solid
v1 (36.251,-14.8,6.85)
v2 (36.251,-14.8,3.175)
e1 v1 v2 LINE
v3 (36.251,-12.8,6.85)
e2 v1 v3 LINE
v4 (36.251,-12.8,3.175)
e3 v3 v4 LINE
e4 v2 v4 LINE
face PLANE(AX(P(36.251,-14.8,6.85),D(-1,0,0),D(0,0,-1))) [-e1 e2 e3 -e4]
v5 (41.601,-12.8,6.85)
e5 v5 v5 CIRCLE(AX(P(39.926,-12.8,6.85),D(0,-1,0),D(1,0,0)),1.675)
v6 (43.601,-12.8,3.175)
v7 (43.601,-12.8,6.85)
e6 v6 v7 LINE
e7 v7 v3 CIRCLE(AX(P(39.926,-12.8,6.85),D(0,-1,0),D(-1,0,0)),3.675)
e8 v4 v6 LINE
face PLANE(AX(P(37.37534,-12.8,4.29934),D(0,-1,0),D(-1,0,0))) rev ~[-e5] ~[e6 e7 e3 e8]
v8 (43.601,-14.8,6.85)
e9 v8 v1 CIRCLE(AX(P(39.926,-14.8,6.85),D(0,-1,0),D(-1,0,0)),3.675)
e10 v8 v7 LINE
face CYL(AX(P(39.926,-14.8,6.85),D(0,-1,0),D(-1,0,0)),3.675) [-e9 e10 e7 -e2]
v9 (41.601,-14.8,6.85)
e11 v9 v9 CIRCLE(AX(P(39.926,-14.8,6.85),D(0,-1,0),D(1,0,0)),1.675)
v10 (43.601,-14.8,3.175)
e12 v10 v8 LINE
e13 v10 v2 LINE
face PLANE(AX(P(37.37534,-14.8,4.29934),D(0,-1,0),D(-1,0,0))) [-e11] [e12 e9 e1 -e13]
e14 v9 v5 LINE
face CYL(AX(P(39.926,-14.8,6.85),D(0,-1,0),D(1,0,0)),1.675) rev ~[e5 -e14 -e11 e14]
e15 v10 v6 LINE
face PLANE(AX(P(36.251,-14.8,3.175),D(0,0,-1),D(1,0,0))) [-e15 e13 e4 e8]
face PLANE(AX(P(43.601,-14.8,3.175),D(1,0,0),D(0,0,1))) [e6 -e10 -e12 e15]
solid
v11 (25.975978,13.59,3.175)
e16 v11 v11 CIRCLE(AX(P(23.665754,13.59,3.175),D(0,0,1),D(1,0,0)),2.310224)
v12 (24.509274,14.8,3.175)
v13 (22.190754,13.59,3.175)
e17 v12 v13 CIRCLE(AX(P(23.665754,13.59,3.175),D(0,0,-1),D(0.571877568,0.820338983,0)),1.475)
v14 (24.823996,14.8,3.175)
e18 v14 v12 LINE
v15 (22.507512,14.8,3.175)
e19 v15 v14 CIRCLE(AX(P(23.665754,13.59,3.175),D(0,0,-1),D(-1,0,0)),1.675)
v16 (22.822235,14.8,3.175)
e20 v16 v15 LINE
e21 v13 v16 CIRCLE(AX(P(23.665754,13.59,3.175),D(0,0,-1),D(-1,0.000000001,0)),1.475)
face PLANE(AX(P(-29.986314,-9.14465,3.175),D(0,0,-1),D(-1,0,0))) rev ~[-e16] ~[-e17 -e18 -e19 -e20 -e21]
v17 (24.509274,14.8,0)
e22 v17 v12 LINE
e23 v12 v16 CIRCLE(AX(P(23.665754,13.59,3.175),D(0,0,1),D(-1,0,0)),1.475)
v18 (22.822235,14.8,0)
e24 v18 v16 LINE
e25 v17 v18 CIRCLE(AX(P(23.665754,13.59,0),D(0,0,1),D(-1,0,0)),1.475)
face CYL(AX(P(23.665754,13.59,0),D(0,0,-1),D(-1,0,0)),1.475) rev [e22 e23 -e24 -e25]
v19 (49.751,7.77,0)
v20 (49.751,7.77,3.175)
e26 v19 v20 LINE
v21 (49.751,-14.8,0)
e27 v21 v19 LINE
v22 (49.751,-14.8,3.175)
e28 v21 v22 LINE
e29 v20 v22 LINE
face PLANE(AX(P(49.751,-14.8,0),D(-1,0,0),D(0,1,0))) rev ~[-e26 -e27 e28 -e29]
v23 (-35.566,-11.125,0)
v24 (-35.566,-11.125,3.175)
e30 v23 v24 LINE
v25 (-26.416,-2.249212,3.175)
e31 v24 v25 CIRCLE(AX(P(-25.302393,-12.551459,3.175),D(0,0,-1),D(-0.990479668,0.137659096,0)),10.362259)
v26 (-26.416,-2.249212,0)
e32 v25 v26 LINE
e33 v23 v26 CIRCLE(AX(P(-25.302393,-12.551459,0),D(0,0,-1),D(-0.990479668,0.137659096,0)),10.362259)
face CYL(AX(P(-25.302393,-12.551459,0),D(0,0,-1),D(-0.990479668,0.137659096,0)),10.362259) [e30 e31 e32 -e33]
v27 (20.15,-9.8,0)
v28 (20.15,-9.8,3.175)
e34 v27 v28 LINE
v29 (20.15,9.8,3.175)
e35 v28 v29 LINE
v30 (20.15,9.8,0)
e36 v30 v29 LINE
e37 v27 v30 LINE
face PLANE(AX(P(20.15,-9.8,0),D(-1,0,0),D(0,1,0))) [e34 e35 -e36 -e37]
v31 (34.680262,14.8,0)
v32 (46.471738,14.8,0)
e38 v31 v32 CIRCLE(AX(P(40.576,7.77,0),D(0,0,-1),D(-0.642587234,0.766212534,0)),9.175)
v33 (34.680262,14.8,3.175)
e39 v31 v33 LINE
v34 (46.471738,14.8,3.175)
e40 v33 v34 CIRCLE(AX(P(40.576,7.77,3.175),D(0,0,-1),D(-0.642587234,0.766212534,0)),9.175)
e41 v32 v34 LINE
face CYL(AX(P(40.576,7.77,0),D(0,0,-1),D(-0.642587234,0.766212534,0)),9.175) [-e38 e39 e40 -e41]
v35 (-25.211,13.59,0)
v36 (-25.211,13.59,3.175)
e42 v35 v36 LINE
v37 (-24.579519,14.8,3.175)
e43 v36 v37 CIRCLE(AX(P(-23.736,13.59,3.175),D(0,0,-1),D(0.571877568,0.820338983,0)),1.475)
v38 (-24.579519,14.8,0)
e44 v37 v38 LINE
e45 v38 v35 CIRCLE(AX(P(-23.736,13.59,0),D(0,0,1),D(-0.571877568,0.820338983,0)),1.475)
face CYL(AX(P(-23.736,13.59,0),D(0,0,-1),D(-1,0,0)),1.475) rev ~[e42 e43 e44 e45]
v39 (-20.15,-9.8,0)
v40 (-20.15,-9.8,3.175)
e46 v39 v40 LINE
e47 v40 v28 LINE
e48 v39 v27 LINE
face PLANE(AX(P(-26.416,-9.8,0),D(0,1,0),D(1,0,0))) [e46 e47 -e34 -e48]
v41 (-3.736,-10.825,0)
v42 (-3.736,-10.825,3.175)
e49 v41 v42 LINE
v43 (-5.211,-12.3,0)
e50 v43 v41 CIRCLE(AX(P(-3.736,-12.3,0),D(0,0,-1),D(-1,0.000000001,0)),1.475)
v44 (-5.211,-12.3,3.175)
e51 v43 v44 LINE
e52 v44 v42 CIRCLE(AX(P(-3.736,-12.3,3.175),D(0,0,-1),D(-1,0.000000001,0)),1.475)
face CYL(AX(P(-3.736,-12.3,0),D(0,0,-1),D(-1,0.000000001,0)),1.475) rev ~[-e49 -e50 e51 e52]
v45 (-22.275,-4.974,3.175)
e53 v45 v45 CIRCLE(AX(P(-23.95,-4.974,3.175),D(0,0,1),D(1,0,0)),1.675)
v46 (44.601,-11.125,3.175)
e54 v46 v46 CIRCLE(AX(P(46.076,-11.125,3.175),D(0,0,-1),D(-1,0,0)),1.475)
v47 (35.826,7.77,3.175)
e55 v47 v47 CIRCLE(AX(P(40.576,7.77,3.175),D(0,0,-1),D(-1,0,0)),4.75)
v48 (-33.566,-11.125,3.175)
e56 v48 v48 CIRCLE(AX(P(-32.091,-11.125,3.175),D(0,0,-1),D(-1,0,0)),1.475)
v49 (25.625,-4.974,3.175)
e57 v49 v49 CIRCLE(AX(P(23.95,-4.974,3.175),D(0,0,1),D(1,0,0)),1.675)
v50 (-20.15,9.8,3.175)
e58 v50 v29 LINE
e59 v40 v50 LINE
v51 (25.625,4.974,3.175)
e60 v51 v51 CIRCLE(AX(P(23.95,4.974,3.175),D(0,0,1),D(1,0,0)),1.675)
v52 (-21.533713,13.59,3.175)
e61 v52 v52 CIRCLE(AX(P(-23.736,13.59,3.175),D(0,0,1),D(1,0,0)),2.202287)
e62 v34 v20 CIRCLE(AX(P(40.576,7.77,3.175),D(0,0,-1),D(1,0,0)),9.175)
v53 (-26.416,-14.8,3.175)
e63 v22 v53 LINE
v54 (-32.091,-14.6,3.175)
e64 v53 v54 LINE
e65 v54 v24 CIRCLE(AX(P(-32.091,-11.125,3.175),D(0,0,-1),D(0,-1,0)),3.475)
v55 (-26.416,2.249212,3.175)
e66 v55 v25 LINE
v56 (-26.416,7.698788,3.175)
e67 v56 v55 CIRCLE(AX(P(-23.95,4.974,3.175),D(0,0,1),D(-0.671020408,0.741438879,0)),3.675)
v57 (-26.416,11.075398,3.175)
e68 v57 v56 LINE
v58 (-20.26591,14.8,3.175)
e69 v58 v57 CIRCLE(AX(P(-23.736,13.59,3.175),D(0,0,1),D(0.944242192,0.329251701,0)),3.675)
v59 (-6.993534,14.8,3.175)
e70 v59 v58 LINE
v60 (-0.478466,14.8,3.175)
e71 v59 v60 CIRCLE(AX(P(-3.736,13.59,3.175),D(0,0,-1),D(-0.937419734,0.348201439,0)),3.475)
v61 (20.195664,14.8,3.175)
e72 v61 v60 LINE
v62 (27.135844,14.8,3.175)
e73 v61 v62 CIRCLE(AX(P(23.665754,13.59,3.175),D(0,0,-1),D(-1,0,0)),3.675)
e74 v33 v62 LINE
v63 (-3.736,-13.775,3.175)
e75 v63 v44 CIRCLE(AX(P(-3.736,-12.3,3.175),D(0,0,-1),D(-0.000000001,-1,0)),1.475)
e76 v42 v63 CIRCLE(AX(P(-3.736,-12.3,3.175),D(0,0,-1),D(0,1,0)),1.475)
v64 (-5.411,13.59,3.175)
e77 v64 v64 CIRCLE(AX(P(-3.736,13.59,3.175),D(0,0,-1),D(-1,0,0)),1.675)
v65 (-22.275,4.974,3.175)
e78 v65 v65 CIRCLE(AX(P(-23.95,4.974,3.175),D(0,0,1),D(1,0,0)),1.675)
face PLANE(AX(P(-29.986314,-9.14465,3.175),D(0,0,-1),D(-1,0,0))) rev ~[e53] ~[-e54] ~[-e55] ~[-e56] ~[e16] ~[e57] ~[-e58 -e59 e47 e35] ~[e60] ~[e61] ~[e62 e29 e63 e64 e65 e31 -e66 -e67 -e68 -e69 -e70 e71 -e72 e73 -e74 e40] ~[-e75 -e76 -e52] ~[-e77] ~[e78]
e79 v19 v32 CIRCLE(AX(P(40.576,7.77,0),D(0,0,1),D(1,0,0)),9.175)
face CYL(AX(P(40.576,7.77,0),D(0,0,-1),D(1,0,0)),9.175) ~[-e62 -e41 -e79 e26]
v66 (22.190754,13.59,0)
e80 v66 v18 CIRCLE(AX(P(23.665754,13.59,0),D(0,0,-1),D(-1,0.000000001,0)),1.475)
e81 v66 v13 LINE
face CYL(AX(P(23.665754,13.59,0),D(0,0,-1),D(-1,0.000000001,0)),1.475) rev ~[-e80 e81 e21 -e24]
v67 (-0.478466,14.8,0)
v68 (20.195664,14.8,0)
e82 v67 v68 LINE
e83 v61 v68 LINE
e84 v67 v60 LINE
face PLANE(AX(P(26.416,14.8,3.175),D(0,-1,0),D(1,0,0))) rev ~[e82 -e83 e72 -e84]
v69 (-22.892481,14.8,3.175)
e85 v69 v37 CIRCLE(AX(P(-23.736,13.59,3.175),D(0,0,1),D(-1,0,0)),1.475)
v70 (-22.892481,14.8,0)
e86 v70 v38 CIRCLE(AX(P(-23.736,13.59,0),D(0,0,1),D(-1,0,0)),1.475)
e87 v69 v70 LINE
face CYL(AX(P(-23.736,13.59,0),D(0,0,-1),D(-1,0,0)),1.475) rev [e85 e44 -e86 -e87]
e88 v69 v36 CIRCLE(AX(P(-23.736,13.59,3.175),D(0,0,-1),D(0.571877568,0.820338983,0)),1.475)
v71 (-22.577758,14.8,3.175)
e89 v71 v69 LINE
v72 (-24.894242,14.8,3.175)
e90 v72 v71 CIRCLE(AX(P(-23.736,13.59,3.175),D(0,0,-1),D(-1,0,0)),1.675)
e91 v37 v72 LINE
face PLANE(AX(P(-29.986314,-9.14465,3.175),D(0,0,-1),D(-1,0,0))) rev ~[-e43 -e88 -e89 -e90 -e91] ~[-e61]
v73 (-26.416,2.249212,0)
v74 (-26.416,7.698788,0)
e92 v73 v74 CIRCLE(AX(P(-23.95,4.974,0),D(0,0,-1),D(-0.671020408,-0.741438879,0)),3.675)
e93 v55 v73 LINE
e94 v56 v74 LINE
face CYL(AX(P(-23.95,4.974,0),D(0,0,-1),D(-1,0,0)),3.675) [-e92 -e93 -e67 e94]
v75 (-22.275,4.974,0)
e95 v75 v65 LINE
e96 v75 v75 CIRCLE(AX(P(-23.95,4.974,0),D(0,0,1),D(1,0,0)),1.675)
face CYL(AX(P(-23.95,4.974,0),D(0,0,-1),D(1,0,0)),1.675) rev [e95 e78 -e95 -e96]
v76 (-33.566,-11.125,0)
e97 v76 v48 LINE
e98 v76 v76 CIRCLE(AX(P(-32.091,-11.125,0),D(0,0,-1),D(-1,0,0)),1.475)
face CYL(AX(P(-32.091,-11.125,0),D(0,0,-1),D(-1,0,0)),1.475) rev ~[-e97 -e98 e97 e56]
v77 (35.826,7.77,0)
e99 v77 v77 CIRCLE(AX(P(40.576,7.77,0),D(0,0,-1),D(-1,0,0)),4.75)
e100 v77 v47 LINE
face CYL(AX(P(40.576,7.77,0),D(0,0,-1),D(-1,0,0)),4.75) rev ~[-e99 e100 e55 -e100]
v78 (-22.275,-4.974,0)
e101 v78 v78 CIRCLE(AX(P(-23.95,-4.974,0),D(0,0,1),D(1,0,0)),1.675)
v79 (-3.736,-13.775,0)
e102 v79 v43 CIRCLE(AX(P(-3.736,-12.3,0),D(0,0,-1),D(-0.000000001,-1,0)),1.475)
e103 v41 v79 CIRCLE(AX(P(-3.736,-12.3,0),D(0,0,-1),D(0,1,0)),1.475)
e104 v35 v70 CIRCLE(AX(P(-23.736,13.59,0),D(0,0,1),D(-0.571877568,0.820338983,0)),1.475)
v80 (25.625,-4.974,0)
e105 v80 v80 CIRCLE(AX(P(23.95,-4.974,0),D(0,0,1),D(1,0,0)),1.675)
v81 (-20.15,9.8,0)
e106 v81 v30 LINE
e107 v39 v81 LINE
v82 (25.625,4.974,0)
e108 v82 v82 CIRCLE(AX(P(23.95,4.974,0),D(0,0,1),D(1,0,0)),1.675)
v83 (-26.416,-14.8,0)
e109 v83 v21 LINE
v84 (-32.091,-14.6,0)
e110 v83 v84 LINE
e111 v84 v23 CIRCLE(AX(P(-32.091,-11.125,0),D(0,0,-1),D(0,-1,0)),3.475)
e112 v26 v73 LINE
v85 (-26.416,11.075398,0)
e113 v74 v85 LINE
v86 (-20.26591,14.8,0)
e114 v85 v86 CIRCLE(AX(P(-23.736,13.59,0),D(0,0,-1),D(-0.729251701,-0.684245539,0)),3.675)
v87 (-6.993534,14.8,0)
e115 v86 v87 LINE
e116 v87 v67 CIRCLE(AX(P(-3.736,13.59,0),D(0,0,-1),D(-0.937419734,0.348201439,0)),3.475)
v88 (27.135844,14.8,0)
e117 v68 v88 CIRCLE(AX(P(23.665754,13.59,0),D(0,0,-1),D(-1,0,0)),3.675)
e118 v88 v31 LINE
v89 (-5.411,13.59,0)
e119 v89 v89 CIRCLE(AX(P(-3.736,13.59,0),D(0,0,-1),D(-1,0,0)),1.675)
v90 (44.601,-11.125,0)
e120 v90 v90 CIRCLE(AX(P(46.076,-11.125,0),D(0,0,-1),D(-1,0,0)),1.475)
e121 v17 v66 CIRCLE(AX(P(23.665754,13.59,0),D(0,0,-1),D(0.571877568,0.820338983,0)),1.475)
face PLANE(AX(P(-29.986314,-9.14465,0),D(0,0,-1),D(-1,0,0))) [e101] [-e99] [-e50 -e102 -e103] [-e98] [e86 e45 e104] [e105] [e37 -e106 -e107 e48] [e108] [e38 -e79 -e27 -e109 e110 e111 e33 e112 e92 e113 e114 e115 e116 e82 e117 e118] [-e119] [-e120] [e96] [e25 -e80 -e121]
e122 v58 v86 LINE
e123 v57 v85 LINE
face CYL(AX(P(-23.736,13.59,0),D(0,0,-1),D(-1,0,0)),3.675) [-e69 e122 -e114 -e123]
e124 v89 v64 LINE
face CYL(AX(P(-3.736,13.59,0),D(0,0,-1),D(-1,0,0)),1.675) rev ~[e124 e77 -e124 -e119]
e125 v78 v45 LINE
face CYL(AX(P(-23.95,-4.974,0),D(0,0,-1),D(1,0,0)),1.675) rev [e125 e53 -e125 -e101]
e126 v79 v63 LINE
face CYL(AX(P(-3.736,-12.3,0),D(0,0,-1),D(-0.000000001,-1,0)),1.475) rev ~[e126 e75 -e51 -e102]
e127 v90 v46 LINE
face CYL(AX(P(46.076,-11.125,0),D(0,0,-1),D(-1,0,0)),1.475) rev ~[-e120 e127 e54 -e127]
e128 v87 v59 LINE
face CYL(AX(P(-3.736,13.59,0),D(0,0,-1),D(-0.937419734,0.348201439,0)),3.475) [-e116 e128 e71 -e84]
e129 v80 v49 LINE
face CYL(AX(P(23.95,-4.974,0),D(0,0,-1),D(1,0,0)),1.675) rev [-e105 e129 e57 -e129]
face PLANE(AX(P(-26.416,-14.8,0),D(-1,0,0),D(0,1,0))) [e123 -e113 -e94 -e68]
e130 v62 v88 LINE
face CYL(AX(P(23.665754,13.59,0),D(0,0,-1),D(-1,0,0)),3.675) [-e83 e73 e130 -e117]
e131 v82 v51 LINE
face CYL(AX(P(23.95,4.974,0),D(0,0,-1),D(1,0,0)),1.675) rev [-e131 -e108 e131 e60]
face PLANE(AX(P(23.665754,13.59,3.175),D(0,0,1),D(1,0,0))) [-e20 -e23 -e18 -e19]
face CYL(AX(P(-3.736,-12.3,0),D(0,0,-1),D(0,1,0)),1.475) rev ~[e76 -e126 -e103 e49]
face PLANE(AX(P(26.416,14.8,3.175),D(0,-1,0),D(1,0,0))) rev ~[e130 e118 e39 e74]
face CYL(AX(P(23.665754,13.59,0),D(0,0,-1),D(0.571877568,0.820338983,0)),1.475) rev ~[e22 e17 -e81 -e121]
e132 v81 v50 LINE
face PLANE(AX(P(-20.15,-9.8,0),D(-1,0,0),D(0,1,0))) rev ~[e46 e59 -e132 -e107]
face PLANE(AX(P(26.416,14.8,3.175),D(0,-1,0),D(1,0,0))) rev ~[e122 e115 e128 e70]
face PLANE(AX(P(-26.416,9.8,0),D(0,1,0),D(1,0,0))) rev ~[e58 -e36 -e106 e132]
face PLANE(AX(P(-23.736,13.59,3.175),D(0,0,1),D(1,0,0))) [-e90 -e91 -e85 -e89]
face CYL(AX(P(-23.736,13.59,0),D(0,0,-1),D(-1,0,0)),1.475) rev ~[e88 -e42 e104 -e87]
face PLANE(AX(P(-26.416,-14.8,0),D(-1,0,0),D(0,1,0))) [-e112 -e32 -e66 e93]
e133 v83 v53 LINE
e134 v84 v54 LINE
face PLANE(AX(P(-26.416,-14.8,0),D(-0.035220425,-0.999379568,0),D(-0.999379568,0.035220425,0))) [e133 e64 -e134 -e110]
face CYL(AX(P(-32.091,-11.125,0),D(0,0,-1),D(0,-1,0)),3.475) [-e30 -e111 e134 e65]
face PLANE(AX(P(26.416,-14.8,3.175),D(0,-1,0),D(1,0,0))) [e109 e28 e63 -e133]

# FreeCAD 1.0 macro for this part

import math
import FreeCAD as App
import Part
import Sketcher
from FreeCAD import Vector


def add_polygon(sketch, points):
    """Adds a closed chain of lines whose ends are joined by coincident constraints."""
    first, n = sketch.GeometryCount, len(points)
    for a, b in zip(points, points[1:] + points[:1]):
        sketch.addGeometry(Part.LineSegment(App.Vector(*a, 0), App.Vector(*b, 0)), False)
    for i in range(n):
        sketch.addConstraint(Sketcher.Constraint("Coincident", first + i, 2, first + (i + 1) % n, 1))

doc = App.newDocument("Part")
params = doc.addObject("Spreadsheet::Sheet", "Params")
for row, (alias, value) in enumerate([
    ("sketch1_diameter", "3.35 mm"),
    ("sketch1_width", "40.3 mm"),
    ("sketch1_height", "29.6 mm"),
    ("sketch1_height2", "19.6 mm"),
    ("pad1_length", "3.175 mm"),
    ("sketch2_width", "30 mm"),
    ("sketch2_height", "29.6 mm"),
    ("pad2_length", "3.175 mm"),
    ("sketch3_diameter", "9.5 mm"),
    ("pocket1_length", "10 mm"),
    ("pad3_length", "3.175 mm"),
    ("sketch5_height", "29.6 mm"),
    ("sketch5_height2", "22.57 mm"),
    ("pocket2_length", "10 mm"),
    ("sketch6_diameter", "2.95 mm"),
    ("pocket3_length", "10 mm"),
    ("sketch7_diameter", "7.35 mm"),
    ("sketch7_diameter2", "3.35 mm"),
    ("pad4_length", "3.175 mm"),
    ("sketch8_diameter", "2.95 mm"),
    ("pocket4_length", "3.175 mm"),
    ("pocket5_length", "10 mm"),
    ("sketch10_diameter", "7.35 mm"),
    ("sketch10_diameter2", "3.35 mm"),
    ("pad5_length", "3.175 mm"),
    ("sketch11_diameter", "2.95 mm"),
    ("pad6_length", "3.175 mm"),
    ("pad7_length", "3.175 mm"),
    ("sketch13_diameter", "3.35 mm"),
    ("sketch15_diameter", "2.95 mm"),
    ("pad8_length", "3.175 mm"),
    ("sketch16_diameter", "3.35 mm"),
    ("pad9_length", "2 mm"),
], start=1):
    params.set(f"A{row}", alias)
    params.set(f"B{row}", "=" + value)
    params.setAlias(f"B{row}", alias)

body = doc.addObject("PartDesign::Body", "Body")

sketch1 = body.newObject("Sketcher::SketchObject", "Sketch")
sketch1.AttachmentSupport = (doc.getObject("XY_Plane"), [""])
sketch1.MapMode = "FlatFace"
add_polygon(sketch1, [(-26.4, -14.8), (26.4, -14.8), (26.4, 14.8), (-26.4, 14.8)])
add_polygon(sketch1, [(-20.1, -9.8), (-20.1, 9.8), (20.1, 9.8), (20.1, -9.8)])
sketch1.addGeometry(Part.Circle(Vector(-23.9, -5, 0), Vector(0, 0, 1), 1.7), False)
sketch1.addGeometry(Part.Circle(Vector(-23.9, 5, 0), Vector(0, 0, 1), 1.7), False)
sketch1.addGeometry(Part.Circle(Vector(23.9, 5, 0), Vector(0, 0, 1), 1.7), False)
sketch1.addGeometry(Part.Circle(Vector(23.9, -5, 0), Vector(0, 0, 1), 1.7), False)
sketch1.addConstraint(Sketcher.Constraint("Horizontal", 0))
sketch1.addConstraint(Sketcher.Constraint("Vertical", 1))
sketch1.addConstraint(Sketcher.Constraint("Horizontal", 2))
sketch1.addConstraint(Sketcher.Constraint("Vertical", 3))
sketch1.addConstraint(Sketcher.Constraint("Vertical", 4))
sketch1.addConstraint(Sketcher.Constraint("Horizontal", 5))
sketch1.addConstraint(Sketcher.Constraint("Vertical", 6))
sketch1.addConstraint(Sketcher.Constraint("Horizontal", 7))
sketch1.addConstraint(Sketcher.Constraint("Equal", 8, 9))
sketch1.addConstraint(Sketcher.Constraint("Equal", 9, 10))
sketch1.addConstraint(Sketcher.Constraint("Equal", 10, 11))
sketch1.addConstraint(Sketcher.Constraint("Symmetric", 8, 3, 10, 3, -1, 1))
sketch1.addConstraint(Sketcher.Constraint("Symmetric", 9, 3, 11, 3, -1, 1))
sketch1.addConstraint(Sketcher.Constraint("Symmetric", 0, 2, 2, 2, -1, 1))
sketch1.addConstraint(Sketcher.Constraint("Symmetric", 4, 2, 6, 2, -1, 1))
sketch1.addConstraint(Sketcher.Constraint("Symmetric", 9, 3, 10, 3, -2))
sketch1.addConstraint(Sketcher.Constraint("Diameter", 8, 3.35))
sketch1.addConstraint(Sketcher.Constraint("DistanceX", 5, 1, 5, 2, 40.3))
sketch1.addConstraint(Sketcher.Constraint("DistanceY", 1, 1, 1, 2, 29.6))
sketch1.addConstraint(Sketcher.Constraint("DistanceY", 4, 1, 4, 2, 19.6))
sketch1.addConstraint(Sketcher.Constraint("DistanceX", 9, 3, 10, 3, 47.9))
sketch1.addConstraint(Sketcher.Constraint("DistanceX", 0, 1, 0, 2, 52.832))
sketch1.addConstraint(Sketcher.Constraint("DistanceY", 8, 3, -1, 1, 4.974))
sketch1.setExpression("Constraints[24]", "Params.sketch1_diameter")
sketch1.setExpression("Constraints[25]", "Params.sketch1_width")
sketch1.setExpression("Constraints[26]", "Params.sketch1_height")
sketch1.setExpression("Constraints[27]", "Params.sketch1_height2")
pad1 = body.newObject("PartDesign::Pad", "Pad")
pad1.Profile = sketch1
pad1.setExpression("Length", "Params.pad1_length")

sketch2 = body.newObject("Sketcher::SketchObject", "Sketch001")
sketch2.AttachmentSupport = (doc.getObject("XY_Plane"), [""])
sketch2.MapMode = "FlatFace"
sketch2.AttachmentOffset = App.Placement(Vector(0, 0, 3.175), App.Rotation())
add_polygon(sketch2, [(26, 15), (26, -15), (56, -15), (56, 15)])
sketch2.addConstraint(Sketcher.Constraint("Vertical", 0))
sketch2.addConstraint(Sketcher.Constraint("Horizontal", 1))
sketch2.addConstraint(Sketcher.Constraint("Vertical", 2))
sketch2.addConstraint(Sketcher.Constraint("Horizontal", 3))
sketch2.addConstraint(Sketcher.Constraint("DistanceX", 1, 1, 1, 2, 30.0))
sketch2.addConstraint(Sketcher.Constraint("DistanceY", 0, 2, 0, 1, 29.6))
sketch2.addConstraint(Sketcher.Constraint("DistanceY", 0, 2, -1, 1, 14.8))
sketch2.addConstraint(Sketcher.Constraint("DistanceX", -1, 1, 0, 2, 26.416))
sketch2.setExpression("Constraints[8]", "Params.sketch2_width")
sketch2.setExpression("Constraints[9]", "Params.sketch2_height")
pad2 = body.newObject("PartDesign::Pad", "Pad001")
pad2.Profile = sketch2
pad2.setExpression("Length", "Params.pad2_length")
pad2.Reversed = True

sketch3 = body.newObject("Sketcher::SketchObject", "Sketch002")
sketch3.AttachmentSupport = (doc.getObject("XY_Plane"), [""])
sketch3.MapMode = "FlatFace"
sketch3.addGeometry(Part.Circle(Vector(40.6, 7.8, 0), Vector(0, 0, 1), 4.8), False)
sketch3.addConstraint(Sketcher.Constraint("Diameter", 0, 9.5))
sketch3.addConstraint(Sketcher.Constraint("DistanceY", -1, 1, 0, 3, 7.77))
sketch3.addConstraint(Sketcher.Constraint("DistanceX", -1, 1, 0, 3, 40.576))
sketch3.setExpression("Constraints[0]", "Params.sketch3_diameter")
pocket1 = body.newObject("PartDesign::Pocket", "Pocket")
pocket1.Profile = sketch3
pocket1.setExpression("Length", "Params.pocket1_length")
pocket1.Reversed = True

sketch4 = body.newObject("Sketcher::SketchObject", "Sketch003")
sketch4.AttachmentSupport = (doc.getObject("XY_Plane"), [""])
sketch4.MapMode = "FlatFace"
sketch4.addGeometry(Part.ArcOfCircle(Part.Circle(Vector(41, 8, 0), Vector(0, 0, 1), 9), math.radians(50), math.radians(130)), False)
sketch4.addGeometry(Part.LineSegment(Vector(46, 15, 0), Vector(35, 15, 0)), False)
sketch4.addConstraint(Sketcher.Constraint("Coincident", 0, 1, 1, 1))
sketch4.addConstraint(Sketcher.Constraint("Coincident", 1, 2, 0, 2))
sketch4.addConstraint(Sketcher.Constraint("Horizontal", 1))
sketch4.addConstraint(Sketcher.Constraint("Radius", 0, 9.175))
sketch4.addConstraint(Sketcher.Constraint("DistanceY", -1, 1, 0, 1, 14.8))
sketch4.addConstraint(Sketcher.Constraint("DistanceY", -1, 1, 0, 3, 7.77))
sketch4.addConstraint(Sketcher.Constraint("DistanceX", -1, 1, 0, 3, 40.576))
pad3 = body.newObject("PartDesign::Pad", "Pad002")
pad3.Profile = sketch4
pad3.setExpression("Length", "Params.pad3_length")

sketch5 = body.newObject("Sketcher::SketchObject", "Sketch004")
sketch5.AttachmentSupport = (doc.getObject("XY_Plane"), [""])
sketch5.MapMode = "FlatFace"
sketch5.addGeometry(Part.LineSegment(Vector(50, -15, 0), Vector(50, 8, 0)), False)
sketch5.addGeometry(Part.ArcOfCircle(Part.Circle(Vector(41, 8, 0), Vector(0, 0, 1), 9), math.radians(0), math.radians(50)), False)
sketch5.addGeometry(Part.LineSegment(Vector(46, 15, 0), Vector(56, 15, 0)), False)
sketch5.addGeometry(Part.LineSegment(Vector(56, 15, 0), Vector(56, -15, 0)), False)
sketch5.addGeometry(Part.LineSegment(Vector(56, -15, 0), Vector(50, -15, 0)), False)
sketch5.addConstraint(Sketcher.Constraint("Tangent", 0, 2, 1, 1))
sketch5.addConstraint(Sketcher.Constraint("Coincident", 1, 2, 2, 1))
sketch5.addConstraint(Sketcher.Constraint("Coincident", 2, 2, 3, 1))
sketch5.addConstraint(Sketcher.Constraint("Coincident", 3, 2, 4, 1))
sketch5.addConstraint(Sketcher.Constraint("Coincident", 4, 2, 0, 1))
sketch5.addConstraint(Sketcher.Constraint("Vertical", 0))
sketch5.addConstraint(Sketcher.Constraint("Horizontal", 2))
sketch5.addConstraint(Sketcher.Constraint("Vertical", 3))
sketch5.addConstraint(Sketcher.Constraint("Horizontal", 4))
sketch5.addConstraint(Sketcher.Constraint("DistanceY", 3, 2, 3, 1, 29.6))
sketch5.addConstraint(Sketcher.Constraint("Radius", 1, 9.175))
sketch5.addConstraint(Sketcher.Constraint("DistanceY", 0, 1, 0, 2, 22.57))
sketch5.addConstraint(Sketcher.Constraint("DistanceY", -1, 1, 1, 2, 14.8))
sketch5.addConstraint(Sketcher.Constraint("DistanceX", 4, 2, 4, 1, 6.665))
sketch5.addConstraint(Sketcher.Constraint("DistanceX", -1, 1, 1, 3, 40.576))
sketch5.setExpression("Constraints[9]", "Params.sketch5_height")
sketch5.setExpression("Constraints[11]", "Params.sketch5_height2")
pocket2 = body.newObject("PartDesign::Pocket", "Pocket001")
pocket2.Profile = sketch5
pocket2.setExpression("Length", "Params.pocket2_length")
pocket2.Reversed = True

sketch6 = body.newObject("Sketcher::SketchObject", "Sketch005")
sketch6.AttachmentSupport = (doc.getObject("XY_Plane"), [""])
sketch6.MapMode = "FlatFace"
sketch6.addGeometry(Part.Circle(Vector(-23.7, 13.6, 0), Vector(0, 0, 1), 1.5), False)
sketch6.addConstraint(Sketcher.Constraint("Diameter", 0, 2.95))
sketch6.addConstraint(Sketcher.Constraint("DistanceY", -1, 1, 0, 3, 13.59))
sketch6.addConstraint(Sketcher.Constraint("DistanceX", 0, 3, -1, 1, 23.736))
sketch6.setExpression("Constraints[0]", "Params.sketch6_diameter")
pocket3 = body.newObject("PartDesign::Pocket", "Pocket002")
pocket3.Profile = sketch6
pocket3.setExpression("Length", "Params.pocket3_length")
pocket3.Reversed = True

sketch7 = body.newObject("Sketcher::SketchObject", "Sketch006")
sketch7.AttachmentSupport = (doc.getObject("XY_Plane"), [""])
sketch7.MapMode = "FlatFace"
sketch7.addGeometry(Part.Circle(Vector(-23.9, -5, 0), Vector(0, 0, 1), 3.7), False)
sketch7.addGeometry(Part.Circle(Vector(-23.9, -5, 0), Vector(0, 0, 1), 1.7), False)
sketch7.addGeometry(Part.Circle(Vector(-23.9, 5, 0), Vector(0, 0, 1), 3.7), False)
sketch7.addGeometry(Part.Circle(Vector(-23.9, 5, 0), Vector(0, 0, 1), 1.7), False)
sketch7.addGeometry(Part.Circle(Vector(-23.7, 13.6, 0), Vector(0, 0, 1), 3.7), False)
sketch7.addGeometry(Part.Circle(Vector(-23.7, 13.6, 0), Vector(0, 0, 1), 1.7), False)
sketch7.addConstraint(Sketcher.Constraint("Coincident", 1, 3, 0, 3))
sketch7.addConstraint(Sketcher.Constraint("Coincident", 3, 3, 2, 3))
sketch7.addConstraint(Sketcher.Constraint("Coincident", 5, 3, 4, 3))
sketch7.addConstraint(Sketcher.Constraint("Equal", 0, 2))
sketch7.addConstraint(Sketcher.Constraint("Equal", 1, 3))
sketch7.addConstraint(Sketcher.Constraint("Equal", 2, 4))
sketch7.addConstraint(Sketcher.Constraint("Equal", 3, 5))
sketch7.addConstraint(Sketcher.Constraint("Symmetric", 0, 3, 2, 3, -1))
sketch7.addConstraint(Sketcher.Constraint("Diameter", 0, 7.35))
sketch7.addConstraint(Sketcher.Constraint("Diameter", 1, 3.35))
sketch7.addConstraint(Sketcher.Constraint("DistanceX", 0, 3, -1, 1, 23.95))
sketch7.addConstraint(Sketcher.Constraint("DistanceY", -1, 1, 4, 3, 13.59))
sketch7.addConstraint(Sketcher.Constraint("DistanceY", 0, 3, -1, 1, 4.974))
sketch7.addConstraint(Sketcher.Constraint("DistanceX", 4, 3, -1, 1, 23.736))
sketch7.setExpression("Constraints[8]", "Params.sketch7_diameter")
sketch7.setExpression("Constraints[9]", "Params.sketch7_diameter2")
pad4 = body.newObject("PartDesign::Pad", "Pad003")
pad4.Profile = sketch7
pad4.setExpression("Length", "Params.pad4_length")

sketch8 = body.newObject("Sketcher::SketchObject", "Sketch007")
sketch8.AttachmentSupport = (doc.getObject("XY_Plane"), [""])
sketch8.MapMode = "FlatFace"
sketch8.addGeometry(Part.Circle(Vector(46.1, -11.1, 0), Vector(0, 0, 1), 1.5), False)
sketch8.addConstraint(Sketcher.Constraint("Diameter", 0, 2.95))
sketch8.addConstraint(Sketcher.Constraint("DistanceX", -1, 1, 0, 3, 46.076))
sketch8.addConstraint(Sketcher.Constraint("DistanceY", 0, 3, -1, 1, 11.125))
sketch8.setExpression("Constraints[0]", "Params.sketch8_diameter")
pocket4 = body.newObject("PartDesign::Pocket", "Pocket003")
pocket4.Profile = sketch8
pocket4.setExpression("Length", "Params.pocket4_length")
pocket4.Reversed = True

sketch9 = body.newObject("Sketcher::SketchObject", "Sketch008")
sketch9.AttachmentSupport = (doc.getObject("XY_Plane"), [""])
sketch9.MapMode = "FlatFace"
sketch9.addGeometry(Part.ArcOfCircle(Part.Circle(Vector(23.7, 13.6, 0), Vector(0, 0, 1), 1.5), math.radians(125), math.radians(180)), False)
sketch9.addGeometry(Part.ArcOfCircle(Part.Circle(Vector(23.7, 13.6, 0), Vector(0, 0, 1), 1.5), math.radians(55), math.radians(125)), False)
sketch9.addGeometry(Part.ArcOfCircle(Part.Circle(Vector(23.7, 13.6, 0), Vector(0, 0, 1), 1.5), math.radians(180), math.radians(415)), False)
sketch9.addConstraint(Sketcher.Constraint("Tangent", 0, 1, 1, 2))
sketch9.addConstraint(Sketcher.Constraint("Tangent", 1, 1, 2, 2))
sketch9.addConstraint(Sketcher.Constraint("Tangent", 2, 1, 0, 2))
sketch9.addConstraint(Sketcher.Constraint("Horizontal", 0, 1, 1, 1))
sketch9.addConstraint(Sketcher.Constraint("Horizontal", 1, 3, 2, 1))
sketch9.addConstraint(Sketcher.Constraint("Radius", 0, 1.475))
sketch9.addConstraint(Sketcher.Constraint("DistanceY", -1, 1, 0, 1, 14.8))
sketch9.addConstraint(Sketcher.Constraint("DistanceY", -1, 1, 0, 3, 13.59))
sketch9.addConstraint(Sketcher.Constraint("DistanceX", -1, 1, 0, 3, 23.665754))
pocket5 = body.newObject("PartDesign::Pocket", "Pocket004")
pocket5.Profile = sketch9
pocket5.setExpression("Length", "Params.pocket5_length")
pocket5.Reversed = True

sketch10 = body.newObject("Sketcher::SketchObject", "Sketch009")
sketch10.AttachmentSupport = (doc.getObject("XY_Plane"), [""])
sketch10.MapMode = "FlatFace"
sketch10.addGeometry(Part.Circle(Vector(23.7, 13.6, 0), Vector(0, 0, 1), 3.7), False)
sketch10.addGeometry(Part.Circle(Vector(23.7, 13.6, 0), Vector(0, 0, 1), 1.7), False)
sketch10.addConstraint(Sketcher.Constraint("Coincident", 1, 3, 0, 3))
sketch10.addConstraint(Sketcher.Constraint("Diameter", 0, 7.35))
sketch10.addConstraint(Sketcher.Constraint("Diameter", 1, 3.35))
sketch10.addConstraint(Sketcher.Constraint("DistanceY", -1, 1, 0, 3, 13.59))
sketch10.addConstraint(Sketcher.Constraint("DistanceX", -1, 1, 0, 3, 23.665754))
sketch10.setExpression("Constraints[1]", "Params.sketch10_diameter")
sketch10.setExpression("Constraints[2]", "Params.sketch10_diameter2")
pad5 = body.newObject("PartDesign::Pad", "Pad004")
pad5.Profile = sketch10
pad5.setExpression("Length", "Params.pad5_length")

sketch11 = body.newObject("Sketcher::SketchObject", "Sketch010")
sketch11.AttachmentSupport = (doc.getObject("XY_Plane"), [""])
sketch11.MapMode = "FlatFace"
sketch11.addGeometry(Part.ArcOfCircle(Part.Circle(Vector(-25.3, -12.6, 0), Vector(0, 0, 1), 10.4), math.radians(96), math.radians(172)), False)
sketch11.addGeometry(Part.LineSegment(Vector(-26.4, -2.2, 0), Vector(-26.4, -14.8, 0)), False)
sketch11.addGeometry(Part.LineSegment(Vector(-26.4, -14.8, 0), Vector(-32.1, -14.6, 0)), False)
sketch11.addGeometry(Part.ArcOfCircle(Part.Circle(Vector(-32.1, -11.1, 0), Vector(0, 0, 1), 3.5), math.radians(180), math.radians(270)), False)
sketch11.addGeometry(Part.Circle(Vector(-32.1, -11.1, 0), Vector(0, 0, 1), 1.5), False)
sketch11.addConstraint(Sketcher.Constraint("Coincident", 0, 1, 1, 1))
sketch11.addConstraint(Sketcher.Constraint("Coincident", 1, 2, 2, 1))
sketch11.addConstraint(Sketcher.Constraint("Coincident", 2, 2, 3, 2))
sketch11.addConstraint(Sketcher.Constraint("Coincident", 3, 1, 0, 2))
sketch11.addConstraint(Sketcher.Constraint("Vertical", 1))
sketch11.addConstraint(Sketcher.Constraint("Coincident", 4, 3, 3, 3))
sketch11.addConstraint(Sketcher.Constraint("Horizontal", 4, 3, 3, 1))
sketch11.addConstraint(Sketcher.Constraint("Vertical", 4, 3, 2, 2))
sketch11.addConstraint(Sketcher.Constraint("Diameter", 4, 2.95))
sketch11.addConstraint(Sketcher.Constraint("Radius", 3, 3.475))
sketch11.addConstraint(Sketcher.Constraint("DistanceY", 1, 2, -1, 1, 14.8))
sketch11.addConstraint(Sketcher.Constraint("DistanceY", 2, 2, -1, 1, 14.6))
sketch11.addConstraint(Sketcher.Constraint("Radius", 0, 10.362259))
sketch11.addConstraint(Sketcher.Constraint("DistanceX", 3, 1, 1, 2, 9.15))
sketch11.addConstraint(Sketcher.Constraint("DistanceX", 3, 3, -1, 1, 32.091))
sketch11.addConstraint(Sketcher.Constraint("DistanceY", 1, 2, 1, 1, 12.550788))
sketch11.setExpression("Constraints[8]", "Params.sketch11_diameter")
pad6 = body.newObject("PartDesign::Pad", "Pad005")
pad6.Profile = sketch11
pad6.setExpression("Length", "Params.pad6_length")

sketch12 = body.newObject("Sketcher::SketchObject", "Sketch011")
sketch12.AttachmentSupport = (doc.getObject("XY_Plane"), [""])
sketch12.MapMode = "FlatFace"
sketch12.addGeometry(Part.ArcOfCircle(Part.Circle(Vector(-3.7, 13.6, 0), Vector(0, 0, 1), 3.5), math.radians(180), math.radians(380)), False)
sketch12.addGeometry(Part.ArcOfCircle(Part.Circle(Vector(-3.7, 13.6, 0), Vector(0, 0, 1), 3.5), math.radians(160), math.radians(180)), False)
sketch12.addGeometry(Part.ArcOfCircle(Part.Circle(Vector(-3.7, 13.6, 0), Vector(0, 0, 1), 3.5), math.radians(20), math.radians(160)), False)
sketch12.addGeometry(Part.ArcOfCircle(Part.Circle(Vector(-3.7, 13.6, 0), Vector(0, 0, 1), 1.5), math.radians(125), math.radians(180)), False)
sketch12.addGeometry(Part.ArcOfCircle(Part.Circle(Vector(-3.7, 13.6, 0), Vector(0, 0, 1), 1.5), math.radians(180), math.radians(415)), False)
sketch12.addGeometry(Part.ArcOfCircle(Part.Circle(Vector(-3.7, 13.6, 0), Vector(0, 0, 1), 1.5), math.radians(55), math.radians(125)), False)
sketch12.addConstraint(Sketcher.Constraint("Tangent", 0, 1, 1, 2))
sketch12.addConstraint(Sketcher.Constraint("Tangent", 1, 1, 2, 2))
sketch12.addConstraint(Sketcher.Constraint("Tangent", 2, 1, 0, 2))
sketch12.addConstraint(Sketcher.Constraint("Tangent", 3, 2, 4, 1))
sketch12.addConstraint(Sketcher.Constraint("Tangent", 4, 2, 5, 1))
sketch12.addConstraint(Sketcher.Constraint("Tangent", 5, 2, 3, 1))
sketch12.addConstraint(Sketcher.Constraint("Coincident", 3, 3, 0, 3))
sketch12.addConstraint(Sketcher.Constraint("Horizontal", 5, 3, 0, 1))
sketch12.addConstraint(Sketcher.Constraint("Horizontal", 1, 1, 2, 1))
sketch12.addConstraint(Sketcher.Constraint("Horizontal", 0, 1, 3, 2))
sketch12.addConstraint(Sketcher.Constraint("Horizontal", 2, 1, 4, 2))
sketch12.addConstraint(Sketcher.Constraint("Horizontal", 4, 2, 5, 2))
sketch12.addConstraint(Sketcher.Constraint("Radius", 0, 3.475))
sketch12.addConstraint(Sketcher.Constraint("Radius", 3, 1.475))
sketch12.addConstraint(Sketcher.Constraint("DistanceY", -1, 1, 1, 1, 14.8))
sketch12.addConstraint(Sketcher.Constraint("DistanceY", -1, 1, 0, 3, 13.59))
sketch12.addConstraint(Sketcher.Constraint("DistanceX", 0, 3, -1, 1, 3.736))
pad7 = body.newObject("PartDesign::Pad", "Pad006")
pad7.Profile = sketch12
pad7.setExpression("Length", "Params.pad7_length")

sketch13 = body.newObject("Sketcher::SketchObject", "Sketch012")
sketch13.AttachmentSupport = (doc.getObject("XY_Plane"), [""])
sketch13.MapMode = "FlatFace"
sketch13.addGeometry(Part.Circle(Vector(-3.7, 13.6, 0), Vector(0, 0, 1), 1.7), False)
sketch13.addConstraint(Sketcher.Constraint("Diameter", 0, 3.35))
sketch13.addConstraint(Sketcher.Constraint("DistanceY", -1, 1, 0, 3, 13.59))
sketch13.addConstraint(Sketcher.Constraint("DistanceX", 0, 3, -1, 1, 3.736))
sketch13.setExpression("Constraints[0]", "Params.sketch13_diameter")
pocket6 = body.newObject("PartDesign::Pocket", "Pocket005")
pocket6.Profile = sketch13
pocket6.Type = "ThroughAll"
pocket6.Reversed = True

sketch14 = body.newObject("Sketcher::SketchObject", "Sketch013")
sketch14.AttachmentSupport = (doc.getObject("XY_Plane"), [""])
sketch14.MapMode = "FlatFace"
sketch14.addGeometry(Part.ArcOfCircle(Part.Circle(Vector(-3.7, -12.3, 0), Vector(0, 0, 1), 1.5), math.radians(90), math.radians(180)), False)
sketch14.addGeometry(Part.ArcOfCircle(Part.Circle(Vector(-3.7, -12.3, 0), Vector(0, 0, 1), 1.5), math.radians(-90), math.radians(90)), False)
sketch14.addGeometry(Part.ArcOfCircle(Part.Circle(Vector(-3.7, -12.3, 0), Vector(0, 0, 1), 1.5), math.radians(-180), math.radians(-90)), False)
sketch14.addConstraint(Sketcher.Constraint("Tangent", 0, 1, 1, 2))
sketch14.addConstraint(Sketcher.Constraint("Tangent", 1, 1, 2, 2))
sketch14.addConstraint(Sketcher.Constraint("Tangent", 2, 1, 0, 2))
sketch14.addConstraint(Sketcher.Constraint("Horizontal", 1, 3, 2, 1))
sketch14.addConstraint(Sketcher.Constraint("Vertical", 2, 3, 0, 1))
sketch14.addConstraint(Sketcher.Constraint("Vertical", 0, 1, 1, 1))
sketch14.addConstraint(Sketcher.Constraint("Radius", 0, 1.475))
sketch14.addConstraint(Sketcher.Constraint("DistanceY", 0, 3, -1, 1, 12.3))
sketch14.addConstraint(Sketcher.Constraint("DistanceX", 0, 3, -1, 1, 3.736))
pocket7 = body.newObject("PartDesign::Pocket", "Pocket006")
pocket7.Profile = sketch14
pocket7.Type = "ThroughAll"
pocket7.Reversed = True

sketch15 = body.newObject("Sketcher::SketchObject", "Sketch014")
sketch15.AttachmentSupport = (doc.getObject("XY_Plane"), [""])
sketch15.MapMode = "FlatFace"
sketch15.addGeometry(Part.Circle(Vector(-23.7, 13.6, 0), Vector(0, 0, 1), 2.2), False)
sketch15.addGeometry(Part.Circle(Vector(-23.7, 13.6, 0), Vector(0, 0, 1), 1.5), False)
sketch15.addGeometry(Part.Circle(Vector(23.7, 13.6, 0), Vector(0, 0, 1), 2.3), False)
sketch15.addGeometry(Part.Circle(Vector(23.7, 13.6, 0), Vector(0, 0, 1), 1.5), False)
sketch15.addConstraint(Sketcher.Constraint("Coincident", 1, 3, 0, 3))
sketch15.addConstraint(Sketcher.Constraint("Coincident", 3, 3, 2, 3))
sketch15.addConstraint(Sketcher.Constraint("Equal", 1, 3))
sketch15.addConstraint(Sketcher.Constraint("Horizontal", 1, 3, 2, 3))
sketch15.addConstraint(Sketcher.Constraint("Diameter", 1, 2.95))
sketch15.addConstraint(Sketcher.Constraint("Diameter", 2, 4.620448))
sketch15.addConstraint(Sketcher.Constraint("DistanceY", -1, 1, 0, 3, 13.59))
sketch15.addConstraint(Sketcher.Constraint("Diameter", 0, 4.404574))
sketch15.addConstraint(Sketcher.Constraint("DistanceX", 0, 3, -1, 1, 23.736))
sketch15.addConstraint(Sketcher.Constraint("DistanceX", -1, 1, 2, 3, 23.665754))
sketch15.setExpression("Constraints[4]", "Params.sketch15_diameter")
pad8 = body.newObject("PartDesign::Pad", "Pad007")
pad8.Profile = sketch15
pad8.setExpression("Length", "Params.pad8_length")
body2 = doc.addObject("PartDesign::Body", "Body001")

sketch16 = body2.newObject("Sketcher::SketchObject", "Sketch015")
sketch16.AttachmentSupport = (doc.getObject("XZ_Plane001"), [""])
sketch16.MapMode = "FlatFace"
sketch16.AttachmentOffset = App.Placement(Vector(0, 0, 14.8), App.Rotation())
sketch16.addGeometry(Part.ArcOfCircle(Part.Circle(Vector(39.9, 6.8, 0), Vector(0, 0, 1), 3.7), math.radians(0), math.radians(180)), False)
sketch16.addGeometry(Part.LineSegment(Vector(36.3, 6.8, 0), Vector(36.3, 3.2, 0)), False)
sketch16.addGeometry(Part.LineSegment(Vector(36.3, 3.2, 0), Vector(43.6, 3.2, 0)), False)
sketch16.addGeometry(Part.LineSegment(Vector(43.6, 3.2, 0), Vector(43.6, 6.8, 0)), False)
sketch16.addGeometry(Part.Circle(Vector(39.9, 6.8, 0), Vector(0, 0, 1), 1.7), False)
sketch16.addConstraint(Sketcher.Constraint("Tangent", 0, 2, 1, 1))
sketch16.addConstraint(Sketcher.Constraint("Coincident", 1, 2, 2, 1))
sketch16.addConstraint(Sketcher.Constraint("Coincident", 2, 2, 3, 1))
sketch16.addConstraint(Sketcher.Constraint("Tangent", 3, 2, 0, 1))
sketch16.addConstraint(Sketcher.Constraint("Vertical", 1))
sketch16.addConstraint(Sketcher.Constraint("Horizontal", 2))
sketch16.addConstraint(Sketcher.Constraint("Vertical", 3))
sketch16.addConstraint(Sketcher.Constraint("Coincident", 4, 3, 0, 3))
sketch16.addConstraint(Sketcher.Constraint("Diameter", 4, 3.35))
sketch16.addConstraint(Sketcher.Constraint("Radius", 0, 3.675))
sketch16.addConstraint(Sketcher.Constraint("DistanceY", 1, 2, 1, 1, 3.675))
sketch16.addConstraint(Sketcher.Constraint("DistanceY", -1, 1, 0, 3, 6.85))
sketch16.addConstraint(Sketcher.Constraint("DistanceX", -1, 1, 0, 3, 39.926))
sketch16.setExpression("Constraints[8]", "Params.sketch16_diameter")
pad9 = body2.newObject("PartDesign::Pad", "Pad008")
pad9.Profile = sketch16
pad9.setExpression("Length", "Params.pad9_length")
pad9.Reversed = True

doc.recompute()
